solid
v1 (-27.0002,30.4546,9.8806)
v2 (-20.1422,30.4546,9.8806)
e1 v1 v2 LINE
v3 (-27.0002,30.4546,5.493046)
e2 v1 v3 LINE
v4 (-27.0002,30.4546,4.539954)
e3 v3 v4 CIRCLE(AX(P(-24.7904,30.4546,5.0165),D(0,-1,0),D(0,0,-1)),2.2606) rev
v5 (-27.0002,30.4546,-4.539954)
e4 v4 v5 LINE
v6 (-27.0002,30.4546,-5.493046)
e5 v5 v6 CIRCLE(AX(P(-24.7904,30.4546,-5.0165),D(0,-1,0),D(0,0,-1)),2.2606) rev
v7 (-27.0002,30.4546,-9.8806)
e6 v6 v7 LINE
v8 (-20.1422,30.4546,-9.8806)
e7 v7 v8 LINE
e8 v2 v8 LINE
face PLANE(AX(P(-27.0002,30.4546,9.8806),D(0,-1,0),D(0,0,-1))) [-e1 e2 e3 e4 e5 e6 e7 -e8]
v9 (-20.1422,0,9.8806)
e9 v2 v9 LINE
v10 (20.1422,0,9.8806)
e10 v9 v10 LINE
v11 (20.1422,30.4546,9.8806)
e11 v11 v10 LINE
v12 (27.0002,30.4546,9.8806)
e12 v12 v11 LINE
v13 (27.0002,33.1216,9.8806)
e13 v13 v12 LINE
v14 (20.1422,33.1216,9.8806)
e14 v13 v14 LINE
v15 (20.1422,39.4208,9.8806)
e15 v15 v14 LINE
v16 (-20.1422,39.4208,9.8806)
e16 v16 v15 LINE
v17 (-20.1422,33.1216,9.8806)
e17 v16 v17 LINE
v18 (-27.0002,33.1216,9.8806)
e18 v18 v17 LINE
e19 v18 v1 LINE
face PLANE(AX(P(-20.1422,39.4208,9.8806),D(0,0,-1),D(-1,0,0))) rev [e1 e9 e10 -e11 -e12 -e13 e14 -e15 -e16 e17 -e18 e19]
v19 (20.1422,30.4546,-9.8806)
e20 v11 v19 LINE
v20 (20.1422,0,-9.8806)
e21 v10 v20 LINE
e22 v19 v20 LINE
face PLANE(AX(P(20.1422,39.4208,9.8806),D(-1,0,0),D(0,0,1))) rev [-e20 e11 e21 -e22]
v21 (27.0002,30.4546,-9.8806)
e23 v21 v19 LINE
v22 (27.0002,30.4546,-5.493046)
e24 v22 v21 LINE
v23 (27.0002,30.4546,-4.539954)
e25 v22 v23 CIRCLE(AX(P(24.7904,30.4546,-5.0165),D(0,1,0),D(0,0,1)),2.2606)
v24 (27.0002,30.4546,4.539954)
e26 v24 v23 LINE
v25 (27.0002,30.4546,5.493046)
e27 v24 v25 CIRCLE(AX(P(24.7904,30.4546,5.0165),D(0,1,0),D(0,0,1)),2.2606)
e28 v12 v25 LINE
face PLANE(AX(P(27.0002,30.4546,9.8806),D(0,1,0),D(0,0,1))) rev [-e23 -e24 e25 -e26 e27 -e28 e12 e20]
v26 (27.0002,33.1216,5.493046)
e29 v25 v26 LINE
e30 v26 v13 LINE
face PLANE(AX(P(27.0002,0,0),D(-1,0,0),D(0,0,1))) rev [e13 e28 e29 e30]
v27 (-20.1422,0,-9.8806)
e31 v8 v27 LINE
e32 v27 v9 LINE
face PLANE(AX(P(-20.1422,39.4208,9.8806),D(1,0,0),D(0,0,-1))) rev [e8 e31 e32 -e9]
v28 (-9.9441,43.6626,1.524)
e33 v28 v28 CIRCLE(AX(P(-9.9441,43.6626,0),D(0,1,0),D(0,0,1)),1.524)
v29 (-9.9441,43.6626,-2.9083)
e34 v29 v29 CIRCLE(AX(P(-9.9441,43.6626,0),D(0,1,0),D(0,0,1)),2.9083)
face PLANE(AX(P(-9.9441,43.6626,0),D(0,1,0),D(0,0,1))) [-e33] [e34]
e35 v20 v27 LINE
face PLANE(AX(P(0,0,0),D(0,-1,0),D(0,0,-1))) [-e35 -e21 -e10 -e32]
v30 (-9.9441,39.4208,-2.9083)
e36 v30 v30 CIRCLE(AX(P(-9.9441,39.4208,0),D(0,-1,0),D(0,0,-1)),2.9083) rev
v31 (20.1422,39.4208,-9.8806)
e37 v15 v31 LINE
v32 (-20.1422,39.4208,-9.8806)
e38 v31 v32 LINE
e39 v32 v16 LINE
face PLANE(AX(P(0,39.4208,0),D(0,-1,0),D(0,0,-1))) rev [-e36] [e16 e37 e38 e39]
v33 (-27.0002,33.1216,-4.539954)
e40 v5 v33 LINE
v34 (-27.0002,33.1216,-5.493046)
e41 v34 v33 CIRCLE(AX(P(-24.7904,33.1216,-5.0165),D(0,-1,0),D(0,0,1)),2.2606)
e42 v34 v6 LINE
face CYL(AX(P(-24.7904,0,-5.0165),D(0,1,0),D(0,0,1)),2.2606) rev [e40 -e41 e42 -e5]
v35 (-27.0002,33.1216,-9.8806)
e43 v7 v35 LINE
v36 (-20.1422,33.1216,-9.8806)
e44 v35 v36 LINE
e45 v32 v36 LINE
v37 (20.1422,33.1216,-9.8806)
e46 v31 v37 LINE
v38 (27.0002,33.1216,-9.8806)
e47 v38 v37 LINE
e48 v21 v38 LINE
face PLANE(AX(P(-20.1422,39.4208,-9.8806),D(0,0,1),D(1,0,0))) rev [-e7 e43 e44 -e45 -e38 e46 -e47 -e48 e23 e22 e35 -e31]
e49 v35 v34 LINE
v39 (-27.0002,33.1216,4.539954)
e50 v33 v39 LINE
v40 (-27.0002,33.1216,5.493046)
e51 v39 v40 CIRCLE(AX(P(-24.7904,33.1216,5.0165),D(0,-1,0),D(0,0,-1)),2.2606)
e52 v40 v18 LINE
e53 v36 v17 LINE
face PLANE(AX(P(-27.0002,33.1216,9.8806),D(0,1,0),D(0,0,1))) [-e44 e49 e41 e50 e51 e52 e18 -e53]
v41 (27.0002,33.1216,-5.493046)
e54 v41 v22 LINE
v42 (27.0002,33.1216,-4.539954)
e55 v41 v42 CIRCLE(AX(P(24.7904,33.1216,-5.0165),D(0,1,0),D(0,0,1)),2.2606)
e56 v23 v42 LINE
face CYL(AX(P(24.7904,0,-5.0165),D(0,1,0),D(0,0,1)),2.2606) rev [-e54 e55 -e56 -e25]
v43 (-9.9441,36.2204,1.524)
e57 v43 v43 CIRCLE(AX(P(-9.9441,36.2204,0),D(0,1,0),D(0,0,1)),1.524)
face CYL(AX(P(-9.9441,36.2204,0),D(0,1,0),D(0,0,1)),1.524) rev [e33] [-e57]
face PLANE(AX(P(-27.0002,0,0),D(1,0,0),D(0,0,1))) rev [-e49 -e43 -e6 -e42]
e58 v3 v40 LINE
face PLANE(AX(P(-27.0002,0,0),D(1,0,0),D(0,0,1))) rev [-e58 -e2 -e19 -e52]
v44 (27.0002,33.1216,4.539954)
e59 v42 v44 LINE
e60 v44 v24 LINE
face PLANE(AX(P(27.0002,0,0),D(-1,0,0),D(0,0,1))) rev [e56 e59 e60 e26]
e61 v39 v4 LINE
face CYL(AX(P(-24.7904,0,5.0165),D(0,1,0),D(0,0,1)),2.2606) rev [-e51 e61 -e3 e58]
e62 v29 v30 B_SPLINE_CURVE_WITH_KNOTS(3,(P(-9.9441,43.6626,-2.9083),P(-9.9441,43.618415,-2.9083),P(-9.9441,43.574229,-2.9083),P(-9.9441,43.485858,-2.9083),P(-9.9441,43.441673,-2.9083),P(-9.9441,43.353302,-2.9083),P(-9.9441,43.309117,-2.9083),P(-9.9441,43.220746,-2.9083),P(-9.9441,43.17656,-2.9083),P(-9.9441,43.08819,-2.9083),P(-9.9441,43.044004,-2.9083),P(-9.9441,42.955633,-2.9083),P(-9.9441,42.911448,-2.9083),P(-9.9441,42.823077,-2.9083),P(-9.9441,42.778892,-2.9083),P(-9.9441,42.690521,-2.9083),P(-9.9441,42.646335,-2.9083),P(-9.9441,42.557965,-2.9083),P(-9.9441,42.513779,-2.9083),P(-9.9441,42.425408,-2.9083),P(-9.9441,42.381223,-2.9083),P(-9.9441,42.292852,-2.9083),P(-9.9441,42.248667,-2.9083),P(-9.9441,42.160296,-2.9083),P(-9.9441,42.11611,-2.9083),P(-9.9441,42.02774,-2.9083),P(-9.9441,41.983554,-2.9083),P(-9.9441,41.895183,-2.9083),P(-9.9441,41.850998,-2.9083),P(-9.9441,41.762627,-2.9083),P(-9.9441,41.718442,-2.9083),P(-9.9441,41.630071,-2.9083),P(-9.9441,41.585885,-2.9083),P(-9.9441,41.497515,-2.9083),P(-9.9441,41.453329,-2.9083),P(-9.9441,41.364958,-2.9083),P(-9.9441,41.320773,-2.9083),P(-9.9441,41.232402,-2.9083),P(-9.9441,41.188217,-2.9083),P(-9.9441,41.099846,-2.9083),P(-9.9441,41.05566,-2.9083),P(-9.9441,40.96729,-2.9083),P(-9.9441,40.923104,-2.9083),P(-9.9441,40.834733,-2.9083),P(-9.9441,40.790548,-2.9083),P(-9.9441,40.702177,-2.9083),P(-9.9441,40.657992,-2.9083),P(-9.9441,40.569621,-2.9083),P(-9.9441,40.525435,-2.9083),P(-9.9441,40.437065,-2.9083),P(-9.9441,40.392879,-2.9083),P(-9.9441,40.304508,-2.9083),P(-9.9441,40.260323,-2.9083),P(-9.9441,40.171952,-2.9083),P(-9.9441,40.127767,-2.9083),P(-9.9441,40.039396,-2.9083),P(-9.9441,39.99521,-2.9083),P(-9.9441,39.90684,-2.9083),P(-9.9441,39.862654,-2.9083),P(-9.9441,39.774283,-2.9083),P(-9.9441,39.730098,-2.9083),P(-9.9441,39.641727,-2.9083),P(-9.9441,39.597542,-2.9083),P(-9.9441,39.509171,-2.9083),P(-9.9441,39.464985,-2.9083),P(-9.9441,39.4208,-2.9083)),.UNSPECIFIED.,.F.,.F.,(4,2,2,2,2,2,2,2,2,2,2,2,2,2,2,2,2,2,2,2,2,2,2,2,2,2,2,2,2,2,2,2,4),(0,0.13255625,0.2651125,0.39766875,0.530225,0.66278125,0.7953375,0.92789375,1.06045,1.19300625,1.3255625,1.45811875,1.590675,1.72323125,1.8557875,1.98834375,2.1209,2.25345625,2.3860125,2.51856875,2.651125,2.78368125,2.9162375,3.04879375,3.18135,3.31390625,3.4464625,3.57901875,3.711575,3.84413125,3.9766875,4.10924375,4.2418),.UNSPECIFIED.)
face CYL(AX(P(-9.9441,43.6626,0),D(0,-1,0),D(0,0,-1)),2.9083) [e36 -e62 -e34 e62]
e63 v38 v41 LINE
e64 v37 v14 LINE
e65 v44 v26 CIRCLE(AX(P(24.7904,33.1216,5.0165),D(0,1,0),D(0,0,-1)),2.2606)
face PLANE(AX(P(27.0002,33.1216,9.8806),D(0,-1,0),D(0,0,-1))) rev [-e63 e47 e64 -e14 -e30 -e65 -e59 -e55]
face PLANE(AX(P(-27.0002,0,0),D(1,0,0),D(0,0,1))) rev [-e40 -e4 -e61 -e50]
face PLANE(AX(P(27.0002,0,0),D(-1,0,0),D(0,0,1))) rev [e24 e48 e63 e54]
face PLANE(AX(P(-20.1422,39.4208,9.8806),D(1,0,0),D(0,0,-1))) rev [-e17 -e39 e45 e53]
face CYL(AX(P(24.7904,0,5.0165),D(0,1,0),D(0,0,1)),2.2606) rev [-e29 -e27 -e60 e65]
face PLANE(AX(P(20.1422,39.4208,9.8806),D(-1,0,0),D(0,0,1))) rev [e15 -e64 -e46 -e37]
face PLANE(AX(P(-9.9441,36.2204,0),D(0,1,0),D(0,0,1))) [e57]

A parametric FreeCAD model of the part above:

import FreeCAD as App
import Part
import Sketcher
from FreeCAD import Vector
Q = App.Units.Quantity

doc = App.newDocument("Part")
params = doc.addObject("Spreadsheet::Sheet", "Params")
for row, (alias, value) in enumerate([
    ("sketch1_width", "1.586 in"),
    ("sketch1_height", "0.778 in"),
    ("pad1_length", "1.552 in"),
    ("sketch2_width", "0.105 in"),
    ("sketch2_height", "0.778 in"),
    ("pad2_length", "0.27 in"),
    ("sketch3_diameter", "0.178 in"),
    ("sketch4_diameter", "0.229 in"),
    ("pad3_length", "0.167 in"),
    ("sketch5_diameter", "0.12 in"),
    ("pocket2_length", "0.293 in"),
], start=1):
    params.set(f"A{row}", alias)
    params.set(f"B{row}", "=" + value)
    params.setAlias(f"B{row}", alias)

body = doc.addObject("PartDesign::Body", "Body")

# Sketch on XZ plane
sketch1 = body.newObject("Sketcher::SketchObject", "Sketch")
sketch1.AttachmentSupport = (doc.getObject("XZ_Plane"), [""])
sketch1.MapMode = "FlatFace"
sketch1.addGeometry([
    Part.LineSegment(Vector(-20, -10, 0), Vector(-20, 10, 0)),
    Part.LineSegment(Vector(-20, 10, 0), Vector(20, 10, 0)),
    Part.LineSegment(Vector(20, 10, 0), Vector(20, -10, 0)),
    Part.LineSegment(Vector(20, -10, 0), Vector(-20, -10, 0)),
], False)
sketch1.addConstraint([
    Sketcher.Constraint("Coincident", 0, 2, 1, 1),
    Sketcher.Constraint("Coincident", 1, 2, 2, 1),
    Sketcher.Constraint("Coincident", 2, 2, 3, 1),
    Sketcher.Constraint("Coincident", 3, 2, 0, 1),
    Sketcher.Constraint("Vertical", 0),
    Sketcher.Constraint("Horizontal", 1),
    Sketcher.Constraint("Vertical", 2),
    Sketcher.Constraint("Horizontal", 3),
    Sketcher.Constraint("Symmetric", 0, 2, 2, 2, -1, 1),
    Sketcher.Constraint("DistanceX", 1, 1, 1, 2, Q("1.586 in")),
    Sketcher.Constraint("DistanceY", 0, 1, 0, 2, Q("0.778 in")),
])
sketch1.setExpression("Constraints[9]", "Params.sketch1_width")
sketch1.setExpression("Constraints[10]", "Params.sketch1_height")
pad1 = body.newObject("PartDesign::Pad", "Pad")
pad1.Profile = sketch1
pad1.setExpression("Length", "Params.pad1_length")
pad1.Reversed = True

# Sketch on YZ plane
sketch2 = body.newObject("Sketcher::SketchObject", "Sketch001")
sketch2.AttachmentSupport = (doc.getObject("YZ_Plane"), [""])
sketch2.MapMode = "FlatFace"
sketch2.AttachmentOffset = App.Placement(Vector(0, 0, 0.793 * 25.4), App.Rotation())
sketch2.addGeometry([
    Part.LineSegment(Vector(33.1, 9.9, 0), Vector(30.5, 9.9, 0)),
    Part.LineSegment(Vector(30.5, 9.9, 0), Vector(30.5, -9.9, 0)),
    Part.LineSegment(Vector(30.5, -9.9, 0), Vector(33.1, -9.9, 0)),
    Part.LineSegment(Vector(33.1, -9.9, 0), Vector(33.1, 9.9, 0)),
], False)
sketch2.addConstraint([
    Sketcher.Constraint("Coincident", 0, 2, 1, 1),
    Sketcher.Constraint("Coincident", 1, 2, 2, 1),
    Sketcher.Constraint("Coincident", 2, 2, 3, 1),
    Sketcher.Constraint("Coincident", 3, 2, 0, 1),
    Sketcher.Constraint("Horizontal", 0),
    Sketcher.Constraint("Vertical", 1),
    Sketcher.Constraint("Horizontal", 2),
    Sketcher.Constraint("Vertical", 3),
    Sketcher.Constraint("DistanceX", 0, 2, 0, 1, Q("0.105 in")),
    Sketcher.Constraint("DistanceY", 1, 2, 1, 1, Q("0.778 in")),
    Sketcher.Constraint("DistanceX", -1, 1, 0, 2, Q("1.199 in")),
    Sketcher.Constraint("DistanceY", -1, 1, 0, 2, Q("0.389 in")),
])
sketch2.setExpression("Constraints[8]", "Params.sketch2_width")
sketch2.setExpression("Constraints[9]", "Params.sketch2_height")
pad2 = body.newObject("PartDesign::Pad", "Pad001")
pad2.Profile = sketch2
pad2.setExpression("Length", "Params.pad2_length")

# Sketch on XZ plane
sketch3 = body.newObject("Sketcher::SketchObject", "Sketch002")
sketch3.AttachmentSupport = (doc.getObject("XZ_Plane"), [""])
sketch3.MapMode = "FlatFace"
sketch3.AttachmentOffset = App.Placement(Vector(0, 0, -1.304 * 25.4), App.Rotation())
sketch3.addGeometry([
    Part.Circle(Vector(24.8, -5, 0), Vector(0, 0, 1), 2.3),
    Part.Circle(Vector(24.8, 5, 0), Vector(0, 0, 1), 2.3),
], False)
sketch3.addConstraint([
    Sketcher.Constraint("Equal", 0, 1),
    Sketcher.Constraint("Symmetric", 0, 3, 1, 3, -1),
    Sketcher.Constraint("Diameter", 0, Q("0.178 in")),
    Sketcher.Constraint("DistanceX", -1, 1, 0, 3, Q("0.976 in")),
    Sketcher.Constraint("DistanceY", 0, 3, 1, 3, Q("0.395 in")),
])
sketch3.setExpression("Constraints[2]", "Params.sketch3_diameter")
pocket1 = body.newObject("PartDesign::Pocket", "Pocket")
pocket1.Profile = sketch3
pocket1.Type = "ThroughAll"
pocket1.Reversed = True
doc.recompute()

mirrored = body.newObject("PartDesign::Mirrored", "Mirrored")
mirrored.Originals = [pad2, pocket1]
mirrored.MirrorPlane = (doc.getObject("YZ_Plane"), [""])
body.Tip = mirrored

# Sketch on XZ plane
sketch4 = body.newObject("Sketcher::SketchObject", "Sketch003")
sketch4.AttachmentSupport = (doc.getObject("XZ_Plane"), [""])
sketch4.MapMode = "FlatFace"
sketch4.AttachmentOffset = App.Placement(Vector(0, 0, -1.552 * 25.4), App.Rotation())
sketch4.addGeometry(Part.Circle(Vector(-9.9, 0, 0), Vector(0, 0, 1), 2.9), False)
sketch4.addConstraint([
    Sketcher.Constraint("PointOnObject", 0, 3, -1),
    Sketcher.Constraint("Diameter", 0, Q("0.229 in")),
    Sketcher.Constraint("DistanceX", 0, 3, -1, 1, Q("0.3915 in")),
])
sketch4.setExpression("Constraints[1]", "Params.sketch4_diameter")
pad3 = body.newObject("PartDesign::Pad", "Pad002")
pad3.Profile = sketch4
pad3.setExpression("Length", "Params.pad3_length")
pad3.Reversed = True

# Sketch on XZ plane
sketch5 = body.newObject("Sketcher::SketchObject", "Sketch004")
sketch5.AttachmentSupport = (doc.getObject("XZ_Plane"), [""])
sketch5.MapMode = "FlatFace"
sketch5.AttachmentOffset = App.Placement(Vector(0, 0, -1.719 * 25.4), App.Rotation())
sketch5.addGeometry(Part.Circle(Vector(-9.9, 0, 0), Vector(0, 0, 1), 1.5), False)
sketch5.addConstraint([
    Sketcher.Constraint("PointOnObject", 0, 3, -1),
    Sketcher.Constraint("Diameter", 0, Q("0.12 in")),
    Sketcher.Constraint("DistanceX", 0, 3, -1, 1, Q("0.3915 in")),
])
sketch5.setExpression("Constraints[1]", "Params.sketch5_diameter")
pocket2 = body.newObject("PartDesign::Pocket", "Pocket001")
pocket2.Profile = sketch5
pocket2.setExpression("Length", "Params.pocket2_length")
pocket2.Reversed = True

doc.recompute()
